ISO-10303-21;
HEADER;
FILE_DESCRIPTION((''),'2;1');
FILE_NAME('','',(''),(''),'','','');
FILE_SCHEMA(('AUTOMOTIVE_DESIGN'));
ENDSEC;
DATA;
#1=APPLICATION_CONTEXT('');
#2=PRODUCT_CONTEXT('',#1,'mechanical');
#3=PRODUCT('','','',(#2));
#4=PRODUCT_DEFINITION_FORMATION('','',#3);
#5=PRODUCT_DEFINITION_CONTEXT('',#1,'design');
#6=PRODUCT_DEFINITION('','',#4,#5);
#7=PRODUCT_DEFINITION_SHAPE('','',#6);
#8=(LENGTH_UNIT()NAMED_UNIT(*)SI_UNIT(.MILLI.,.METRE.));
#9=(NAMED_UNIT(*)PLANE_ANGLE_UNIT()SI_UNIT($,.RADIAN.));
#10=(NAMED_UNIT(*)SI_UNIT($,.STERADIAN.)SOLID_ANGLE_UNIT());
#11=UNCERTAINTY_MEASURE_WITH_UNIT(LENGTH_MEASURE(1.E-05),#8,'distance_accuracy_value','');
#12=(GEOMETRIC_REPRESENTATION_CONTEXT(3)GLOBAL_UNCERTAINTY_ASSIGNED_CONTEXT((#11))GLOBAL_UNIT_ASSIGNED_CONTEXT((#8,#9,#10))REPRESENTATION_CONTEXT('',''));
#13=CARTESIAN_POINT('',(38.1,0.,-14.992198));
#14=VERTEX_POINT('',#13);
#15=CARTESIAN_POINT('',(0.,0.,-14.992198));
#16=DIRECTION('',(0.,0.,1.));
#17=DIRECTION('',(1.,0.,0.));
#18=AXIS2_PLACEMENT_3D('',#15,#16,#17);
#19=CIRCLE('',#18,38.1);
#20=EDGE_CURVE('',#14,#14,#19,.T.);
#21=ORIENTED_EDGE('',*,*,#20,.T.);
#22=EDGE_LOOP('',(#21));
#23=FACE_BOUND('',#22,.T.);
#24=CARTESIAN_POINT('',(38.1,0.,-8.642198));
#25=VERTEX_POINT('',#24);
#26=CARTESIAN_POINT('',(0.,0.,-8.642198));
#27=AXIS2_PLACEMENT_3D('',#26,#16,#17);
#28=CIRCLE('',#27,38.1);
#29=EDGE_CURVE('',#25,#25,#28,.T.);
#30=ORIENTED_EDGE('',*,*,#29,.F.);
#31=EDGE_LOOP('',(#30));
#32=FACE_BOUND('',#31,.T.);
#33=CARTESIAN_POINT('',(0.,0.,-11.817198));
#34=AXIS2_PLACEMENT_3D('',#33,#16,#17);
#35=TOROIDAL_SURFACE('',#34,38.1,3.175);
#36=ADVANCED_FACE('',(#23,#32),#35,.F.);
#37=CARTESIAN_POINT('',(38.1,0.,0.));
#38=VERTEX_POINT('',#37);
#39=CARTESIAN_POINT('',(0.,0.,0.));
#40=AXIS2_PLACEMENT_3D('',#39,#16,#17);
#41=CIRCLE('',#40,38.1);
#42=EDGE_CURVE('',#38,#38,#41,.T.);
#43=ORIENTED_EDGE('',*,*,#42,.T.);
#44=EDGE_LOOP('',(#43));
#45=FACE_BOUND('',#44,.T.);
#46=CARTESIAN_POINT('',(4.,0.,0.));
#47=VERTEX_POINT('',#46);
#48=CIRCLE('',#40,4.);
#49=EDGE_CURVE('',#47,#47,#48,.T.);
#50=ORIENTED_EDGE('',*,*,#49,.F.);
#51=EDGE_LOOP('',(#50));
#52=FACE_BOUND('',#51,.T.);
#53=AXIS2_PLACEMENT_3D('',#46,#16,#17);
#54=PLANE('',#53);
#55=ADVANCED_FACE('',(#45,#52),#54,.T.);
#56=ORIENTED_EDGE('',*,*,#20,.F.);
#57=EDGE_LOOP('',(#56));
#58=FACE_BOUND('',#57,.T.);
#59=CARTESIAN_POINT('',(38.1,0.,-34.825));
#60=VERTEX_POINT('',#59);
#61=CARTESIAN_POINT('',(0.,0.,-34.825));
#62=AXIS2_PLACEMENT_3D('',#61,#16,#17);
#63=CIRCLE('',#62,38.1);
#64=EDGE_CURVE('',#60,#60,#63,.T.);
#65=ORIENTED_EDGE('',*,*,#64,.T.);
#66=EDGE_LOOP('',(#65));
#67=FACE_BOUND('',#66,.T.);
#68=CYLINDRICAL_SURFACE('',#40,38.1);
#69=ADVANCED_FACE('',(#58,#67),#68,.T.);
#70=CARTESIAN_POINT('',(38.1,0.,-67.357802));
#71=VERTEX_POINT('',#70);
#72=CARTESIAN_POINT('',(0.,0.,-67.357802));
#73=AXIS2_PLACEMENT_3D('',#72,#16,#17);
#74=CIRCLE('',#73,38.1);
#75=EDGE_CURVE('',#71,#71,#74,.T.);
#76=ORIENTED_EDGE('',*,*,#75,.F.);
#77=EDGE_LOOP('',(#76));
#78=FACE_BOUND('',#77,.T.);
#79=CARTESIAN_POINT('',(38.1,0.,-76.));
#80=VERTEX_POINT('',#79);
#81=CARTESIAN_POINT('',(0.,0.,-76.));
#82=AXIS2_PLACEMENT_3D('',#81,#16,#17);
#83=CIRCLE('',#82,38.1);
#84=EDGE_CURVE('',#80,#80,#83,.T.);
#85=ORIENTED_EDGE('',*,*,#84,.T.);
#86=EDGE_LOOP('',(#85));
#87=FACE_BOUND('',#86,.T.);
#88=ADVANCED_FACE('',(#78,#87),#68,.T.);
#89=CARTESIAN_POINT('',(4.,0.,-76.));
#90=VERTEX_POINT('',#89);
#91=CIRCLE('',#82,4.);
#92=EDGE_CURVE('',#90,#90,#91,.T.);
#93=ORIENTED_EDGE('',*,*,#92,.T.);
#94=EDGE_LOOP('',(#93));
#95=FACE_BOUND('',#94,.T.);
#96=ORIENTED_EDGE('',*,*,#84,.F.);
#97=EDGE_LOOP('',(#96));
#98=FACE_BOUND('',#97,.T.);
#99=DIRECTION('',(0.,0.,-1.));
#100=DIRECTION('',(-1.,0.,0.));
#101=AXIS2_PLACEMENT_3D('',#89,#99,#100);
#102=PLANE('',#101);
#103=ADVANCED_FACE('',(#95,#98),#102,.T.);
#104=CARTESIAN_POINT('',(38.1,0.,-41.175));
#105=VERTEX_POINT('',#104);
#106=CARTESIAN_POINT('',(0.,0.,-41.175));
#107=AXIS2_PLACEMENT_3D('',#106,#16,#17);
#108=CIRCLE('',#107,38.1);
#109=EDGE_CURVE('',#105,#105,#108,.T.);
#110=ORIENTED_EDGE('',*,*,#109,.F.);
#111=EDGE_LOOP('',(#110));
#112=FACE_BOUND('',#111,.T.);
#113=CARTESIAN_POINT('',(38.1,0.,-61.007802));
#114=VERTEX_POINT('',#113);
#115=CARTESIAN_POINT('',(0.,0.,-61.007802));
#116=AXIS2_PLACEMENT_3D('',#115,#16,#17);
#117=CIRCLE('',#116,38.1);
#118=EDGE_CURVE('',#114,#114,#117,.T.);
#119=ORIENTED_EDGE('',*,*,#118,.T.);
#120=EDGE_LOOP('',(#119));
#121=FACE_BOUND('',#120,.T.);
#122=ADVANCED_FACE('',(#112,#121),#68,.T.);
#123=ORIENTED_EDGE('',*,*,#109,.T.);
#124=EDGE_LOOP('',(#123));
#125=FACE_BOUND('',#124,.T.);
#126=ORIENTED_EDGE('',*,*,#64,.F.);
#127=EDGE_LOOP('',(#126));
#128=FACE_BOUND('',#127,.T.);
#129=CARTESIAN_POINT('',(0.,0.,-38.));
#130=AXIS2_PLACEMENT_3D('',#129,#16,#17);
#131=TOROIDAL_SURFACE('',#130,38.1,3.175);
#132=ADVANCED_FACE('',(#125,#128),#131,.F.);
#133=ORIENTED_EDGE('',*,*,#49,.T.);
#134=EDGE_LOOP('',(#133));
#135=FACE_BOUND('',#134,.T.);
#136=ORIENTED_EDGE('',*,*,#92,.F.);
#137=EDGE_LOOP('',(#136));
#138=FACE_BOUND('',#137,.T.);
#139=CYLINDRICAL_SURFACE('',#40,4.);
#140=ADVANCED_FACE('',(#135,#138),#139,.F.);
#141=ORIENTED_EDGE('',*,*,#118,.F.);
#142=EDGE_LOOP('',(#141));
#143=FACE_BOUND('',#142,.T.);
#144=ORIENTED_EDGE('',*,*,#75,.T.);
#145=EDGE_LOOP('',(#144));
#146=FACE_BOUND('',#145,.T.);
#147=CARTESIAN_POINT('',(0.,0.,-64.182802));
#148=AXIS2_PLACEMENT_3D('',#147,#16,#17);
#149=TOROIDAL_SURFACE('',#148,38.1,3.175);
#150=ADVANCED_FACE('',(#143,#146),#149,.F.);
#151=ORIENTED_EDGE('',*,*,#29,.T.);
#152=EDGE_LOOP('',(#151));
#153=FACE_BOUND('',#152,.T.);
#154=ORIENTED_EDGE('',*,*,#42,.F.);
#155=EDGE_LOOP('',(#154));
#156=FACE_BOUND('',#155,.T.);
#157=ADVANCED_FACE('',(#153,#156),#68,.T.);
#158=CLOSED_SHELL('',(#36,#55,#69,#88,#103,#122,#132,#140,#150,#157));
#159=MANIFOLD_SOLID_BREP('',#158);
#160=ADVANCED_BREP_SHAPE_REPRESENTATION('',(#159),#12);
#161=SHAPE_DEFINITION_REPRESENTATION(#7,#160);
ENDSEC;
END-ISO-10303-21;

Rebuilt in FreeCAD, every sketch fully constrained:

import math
import FreeCAD as App
import Part
import Sketcher
from FreeCAD import Vector

doc = App.newDocument("Part")
params = doc.addObject("Spreadsheet::Sheet", "Params")
for row, (alias, value) in enumerate([
    ("sketch1_height", "76 mm"),
    ("sketch1_width", "34.1 mm"),
    ("revolution_angle", "360 deg"),
], start=1):
    params.set(f"A{row}", alias)
    params.set(f"B{row}", "=" + value)
    params.setAlias(f"B{row}", alias)

body = doc.addObject("PartDesign::Body", "Body")

sketch1 = body.newObject("Sketcher::SketchObject", "Sketch")
sketch1.AttachmentSupport = (doc.getObject("XZ_Plane"), [""])
sketch1.MapMode = "FlatFace"
sketch1.addGeometry([
    Part.LineSegment(Vector(4, 0, 0), Vector(38.1, 0, 0)),
    Part.LineSegment(Vector(38.1, 0, 0), Vector(38.1, -8.6, 0)),
    Part.ArcOfCircle(Part.Circle(Vector(38.1, -11.8, 0), Vector(0, 0, 1), 3.2), math.radians(90), math.radians(270)),
    Part.LineSegment(Vector(38.1, -15, 0), Vector(38.1, -34.8, 0)),
    Part.ArcOfCircle(Part.Circle(Vector(38.1, -38, 0), Vector(0, 0, 1), 3.2), math.radians(90), math.radians(270)),
    Part.LineSegment(Vector(38.1, -41.2, 0), Vector(38.1, -61, 0)),
    Part.ArcOfCircle(Part.Circle(Vector(38.1, -64.2, 0), Vector(0, 0, 1), 3.2), math.radians(90), math.radians(270)),
    Part.LineSegment(Vector(38.1, -67.4, 0), Vector(38.1, -76, 0)),
    Part.LineSegment(Vector(38.1, -76, 0), Vector(4, -76, 0)),
    Part.LineSegment(Vector(4, -76, 0), Vector(4, 0, 0)),
], False)
sketch1.addConstraint([
    Sketcher.Constraint("Coincident", 0, 2, 1, 1),
    Sketcher.Constraint("Coincident", 1, 2, 2, 1),
    Sketcher.Constraint("Coincident", 2, 2, 3, 1),
    Sketcher.Constraint("Coincident", 3, 2, 4, 1),
    Sketcher.Constraint("Coincident", 4, 2, 5, 1),
    Sketcher.Constraint("Coincident", 5, 2, 6, 1),
    Sketcher.Constraint("Coincident", 6, 2, 7, 1),
    Sketcher.Constraint("Coincident", 7, 2, 8, 1),
    Sketcher.Constraint("Coincident", 8, 2, 9, 1),
    Sketcher.Constraint("Coincident", 9, 2, 0, 1),
    Sketcher.Constraint("Horizontal", 0),
    Sketcher.Constraint("Vertical", 1),
    Sketcher.Constraint("Vertical", 3),
    Sketcher.Constraint("Vertical", 5),
    Sketcher.Constraint("Vertical", 7),
    Sketcher.Constraint("Horizontal", 8),
    Sketcher.Constraint("Vertical", 9),
    Sketcher.Constraint("Equal", 2, 4),
    Sketcher.Constraint("Equal", 4, 6),
    Sketcher.Constraint("PointOnObject", 0, 2, -1),
    Sketcher.Constraint("Vertical", 2, 3, 4, 3),
    Sketcher.Constraint("Vertical", 4, 3, 6, 3),
    Sketcher.Constraint("Vertical", 6, 3, 0, 2),
    Sketcher.Constraint("Vertical", 1, 2, 2, 2),
    Sketcher.Constraint("Vertical", 3, 2, 4, 2),
    Sketcher.Constraint("Vertical", 5, 2, 6, 2),
    Sketcher.Constraint("Equal", 3, 5),
    Sketcher.Constraint("Equal", 1, 7),
    Sketcher.Constraint("DistanceY", 9, 1, 9, 2, 76.0),
    Sketcher.Constraint("DistanceX", 0, 1, 0, 2, 34.1),
    Sketcher.Constraint("DistanceX", -1, 1, 8, 2, 4.0),
    Sketcher.Constraint("Radius", 2, 3.175),
    Sketcher.Constraint("DistanceY", 1, 2, 1, 1, 8.642198),
])
sketch1.setExpression("Constraints[28]", "Params.sketch1_height")
sketch1.setExpression("Constraints[29]", "Params.sketch1_width")
revolution = body.newObject("PartDesign::Revolution", "Revolution")
revolution.Profile = sketch1
revolution.ReferenceAxis = (sketch1, ["V_Axis"])
revolution.setExpression("Angle", "Params.revolution_angle")

doc.recompute()
